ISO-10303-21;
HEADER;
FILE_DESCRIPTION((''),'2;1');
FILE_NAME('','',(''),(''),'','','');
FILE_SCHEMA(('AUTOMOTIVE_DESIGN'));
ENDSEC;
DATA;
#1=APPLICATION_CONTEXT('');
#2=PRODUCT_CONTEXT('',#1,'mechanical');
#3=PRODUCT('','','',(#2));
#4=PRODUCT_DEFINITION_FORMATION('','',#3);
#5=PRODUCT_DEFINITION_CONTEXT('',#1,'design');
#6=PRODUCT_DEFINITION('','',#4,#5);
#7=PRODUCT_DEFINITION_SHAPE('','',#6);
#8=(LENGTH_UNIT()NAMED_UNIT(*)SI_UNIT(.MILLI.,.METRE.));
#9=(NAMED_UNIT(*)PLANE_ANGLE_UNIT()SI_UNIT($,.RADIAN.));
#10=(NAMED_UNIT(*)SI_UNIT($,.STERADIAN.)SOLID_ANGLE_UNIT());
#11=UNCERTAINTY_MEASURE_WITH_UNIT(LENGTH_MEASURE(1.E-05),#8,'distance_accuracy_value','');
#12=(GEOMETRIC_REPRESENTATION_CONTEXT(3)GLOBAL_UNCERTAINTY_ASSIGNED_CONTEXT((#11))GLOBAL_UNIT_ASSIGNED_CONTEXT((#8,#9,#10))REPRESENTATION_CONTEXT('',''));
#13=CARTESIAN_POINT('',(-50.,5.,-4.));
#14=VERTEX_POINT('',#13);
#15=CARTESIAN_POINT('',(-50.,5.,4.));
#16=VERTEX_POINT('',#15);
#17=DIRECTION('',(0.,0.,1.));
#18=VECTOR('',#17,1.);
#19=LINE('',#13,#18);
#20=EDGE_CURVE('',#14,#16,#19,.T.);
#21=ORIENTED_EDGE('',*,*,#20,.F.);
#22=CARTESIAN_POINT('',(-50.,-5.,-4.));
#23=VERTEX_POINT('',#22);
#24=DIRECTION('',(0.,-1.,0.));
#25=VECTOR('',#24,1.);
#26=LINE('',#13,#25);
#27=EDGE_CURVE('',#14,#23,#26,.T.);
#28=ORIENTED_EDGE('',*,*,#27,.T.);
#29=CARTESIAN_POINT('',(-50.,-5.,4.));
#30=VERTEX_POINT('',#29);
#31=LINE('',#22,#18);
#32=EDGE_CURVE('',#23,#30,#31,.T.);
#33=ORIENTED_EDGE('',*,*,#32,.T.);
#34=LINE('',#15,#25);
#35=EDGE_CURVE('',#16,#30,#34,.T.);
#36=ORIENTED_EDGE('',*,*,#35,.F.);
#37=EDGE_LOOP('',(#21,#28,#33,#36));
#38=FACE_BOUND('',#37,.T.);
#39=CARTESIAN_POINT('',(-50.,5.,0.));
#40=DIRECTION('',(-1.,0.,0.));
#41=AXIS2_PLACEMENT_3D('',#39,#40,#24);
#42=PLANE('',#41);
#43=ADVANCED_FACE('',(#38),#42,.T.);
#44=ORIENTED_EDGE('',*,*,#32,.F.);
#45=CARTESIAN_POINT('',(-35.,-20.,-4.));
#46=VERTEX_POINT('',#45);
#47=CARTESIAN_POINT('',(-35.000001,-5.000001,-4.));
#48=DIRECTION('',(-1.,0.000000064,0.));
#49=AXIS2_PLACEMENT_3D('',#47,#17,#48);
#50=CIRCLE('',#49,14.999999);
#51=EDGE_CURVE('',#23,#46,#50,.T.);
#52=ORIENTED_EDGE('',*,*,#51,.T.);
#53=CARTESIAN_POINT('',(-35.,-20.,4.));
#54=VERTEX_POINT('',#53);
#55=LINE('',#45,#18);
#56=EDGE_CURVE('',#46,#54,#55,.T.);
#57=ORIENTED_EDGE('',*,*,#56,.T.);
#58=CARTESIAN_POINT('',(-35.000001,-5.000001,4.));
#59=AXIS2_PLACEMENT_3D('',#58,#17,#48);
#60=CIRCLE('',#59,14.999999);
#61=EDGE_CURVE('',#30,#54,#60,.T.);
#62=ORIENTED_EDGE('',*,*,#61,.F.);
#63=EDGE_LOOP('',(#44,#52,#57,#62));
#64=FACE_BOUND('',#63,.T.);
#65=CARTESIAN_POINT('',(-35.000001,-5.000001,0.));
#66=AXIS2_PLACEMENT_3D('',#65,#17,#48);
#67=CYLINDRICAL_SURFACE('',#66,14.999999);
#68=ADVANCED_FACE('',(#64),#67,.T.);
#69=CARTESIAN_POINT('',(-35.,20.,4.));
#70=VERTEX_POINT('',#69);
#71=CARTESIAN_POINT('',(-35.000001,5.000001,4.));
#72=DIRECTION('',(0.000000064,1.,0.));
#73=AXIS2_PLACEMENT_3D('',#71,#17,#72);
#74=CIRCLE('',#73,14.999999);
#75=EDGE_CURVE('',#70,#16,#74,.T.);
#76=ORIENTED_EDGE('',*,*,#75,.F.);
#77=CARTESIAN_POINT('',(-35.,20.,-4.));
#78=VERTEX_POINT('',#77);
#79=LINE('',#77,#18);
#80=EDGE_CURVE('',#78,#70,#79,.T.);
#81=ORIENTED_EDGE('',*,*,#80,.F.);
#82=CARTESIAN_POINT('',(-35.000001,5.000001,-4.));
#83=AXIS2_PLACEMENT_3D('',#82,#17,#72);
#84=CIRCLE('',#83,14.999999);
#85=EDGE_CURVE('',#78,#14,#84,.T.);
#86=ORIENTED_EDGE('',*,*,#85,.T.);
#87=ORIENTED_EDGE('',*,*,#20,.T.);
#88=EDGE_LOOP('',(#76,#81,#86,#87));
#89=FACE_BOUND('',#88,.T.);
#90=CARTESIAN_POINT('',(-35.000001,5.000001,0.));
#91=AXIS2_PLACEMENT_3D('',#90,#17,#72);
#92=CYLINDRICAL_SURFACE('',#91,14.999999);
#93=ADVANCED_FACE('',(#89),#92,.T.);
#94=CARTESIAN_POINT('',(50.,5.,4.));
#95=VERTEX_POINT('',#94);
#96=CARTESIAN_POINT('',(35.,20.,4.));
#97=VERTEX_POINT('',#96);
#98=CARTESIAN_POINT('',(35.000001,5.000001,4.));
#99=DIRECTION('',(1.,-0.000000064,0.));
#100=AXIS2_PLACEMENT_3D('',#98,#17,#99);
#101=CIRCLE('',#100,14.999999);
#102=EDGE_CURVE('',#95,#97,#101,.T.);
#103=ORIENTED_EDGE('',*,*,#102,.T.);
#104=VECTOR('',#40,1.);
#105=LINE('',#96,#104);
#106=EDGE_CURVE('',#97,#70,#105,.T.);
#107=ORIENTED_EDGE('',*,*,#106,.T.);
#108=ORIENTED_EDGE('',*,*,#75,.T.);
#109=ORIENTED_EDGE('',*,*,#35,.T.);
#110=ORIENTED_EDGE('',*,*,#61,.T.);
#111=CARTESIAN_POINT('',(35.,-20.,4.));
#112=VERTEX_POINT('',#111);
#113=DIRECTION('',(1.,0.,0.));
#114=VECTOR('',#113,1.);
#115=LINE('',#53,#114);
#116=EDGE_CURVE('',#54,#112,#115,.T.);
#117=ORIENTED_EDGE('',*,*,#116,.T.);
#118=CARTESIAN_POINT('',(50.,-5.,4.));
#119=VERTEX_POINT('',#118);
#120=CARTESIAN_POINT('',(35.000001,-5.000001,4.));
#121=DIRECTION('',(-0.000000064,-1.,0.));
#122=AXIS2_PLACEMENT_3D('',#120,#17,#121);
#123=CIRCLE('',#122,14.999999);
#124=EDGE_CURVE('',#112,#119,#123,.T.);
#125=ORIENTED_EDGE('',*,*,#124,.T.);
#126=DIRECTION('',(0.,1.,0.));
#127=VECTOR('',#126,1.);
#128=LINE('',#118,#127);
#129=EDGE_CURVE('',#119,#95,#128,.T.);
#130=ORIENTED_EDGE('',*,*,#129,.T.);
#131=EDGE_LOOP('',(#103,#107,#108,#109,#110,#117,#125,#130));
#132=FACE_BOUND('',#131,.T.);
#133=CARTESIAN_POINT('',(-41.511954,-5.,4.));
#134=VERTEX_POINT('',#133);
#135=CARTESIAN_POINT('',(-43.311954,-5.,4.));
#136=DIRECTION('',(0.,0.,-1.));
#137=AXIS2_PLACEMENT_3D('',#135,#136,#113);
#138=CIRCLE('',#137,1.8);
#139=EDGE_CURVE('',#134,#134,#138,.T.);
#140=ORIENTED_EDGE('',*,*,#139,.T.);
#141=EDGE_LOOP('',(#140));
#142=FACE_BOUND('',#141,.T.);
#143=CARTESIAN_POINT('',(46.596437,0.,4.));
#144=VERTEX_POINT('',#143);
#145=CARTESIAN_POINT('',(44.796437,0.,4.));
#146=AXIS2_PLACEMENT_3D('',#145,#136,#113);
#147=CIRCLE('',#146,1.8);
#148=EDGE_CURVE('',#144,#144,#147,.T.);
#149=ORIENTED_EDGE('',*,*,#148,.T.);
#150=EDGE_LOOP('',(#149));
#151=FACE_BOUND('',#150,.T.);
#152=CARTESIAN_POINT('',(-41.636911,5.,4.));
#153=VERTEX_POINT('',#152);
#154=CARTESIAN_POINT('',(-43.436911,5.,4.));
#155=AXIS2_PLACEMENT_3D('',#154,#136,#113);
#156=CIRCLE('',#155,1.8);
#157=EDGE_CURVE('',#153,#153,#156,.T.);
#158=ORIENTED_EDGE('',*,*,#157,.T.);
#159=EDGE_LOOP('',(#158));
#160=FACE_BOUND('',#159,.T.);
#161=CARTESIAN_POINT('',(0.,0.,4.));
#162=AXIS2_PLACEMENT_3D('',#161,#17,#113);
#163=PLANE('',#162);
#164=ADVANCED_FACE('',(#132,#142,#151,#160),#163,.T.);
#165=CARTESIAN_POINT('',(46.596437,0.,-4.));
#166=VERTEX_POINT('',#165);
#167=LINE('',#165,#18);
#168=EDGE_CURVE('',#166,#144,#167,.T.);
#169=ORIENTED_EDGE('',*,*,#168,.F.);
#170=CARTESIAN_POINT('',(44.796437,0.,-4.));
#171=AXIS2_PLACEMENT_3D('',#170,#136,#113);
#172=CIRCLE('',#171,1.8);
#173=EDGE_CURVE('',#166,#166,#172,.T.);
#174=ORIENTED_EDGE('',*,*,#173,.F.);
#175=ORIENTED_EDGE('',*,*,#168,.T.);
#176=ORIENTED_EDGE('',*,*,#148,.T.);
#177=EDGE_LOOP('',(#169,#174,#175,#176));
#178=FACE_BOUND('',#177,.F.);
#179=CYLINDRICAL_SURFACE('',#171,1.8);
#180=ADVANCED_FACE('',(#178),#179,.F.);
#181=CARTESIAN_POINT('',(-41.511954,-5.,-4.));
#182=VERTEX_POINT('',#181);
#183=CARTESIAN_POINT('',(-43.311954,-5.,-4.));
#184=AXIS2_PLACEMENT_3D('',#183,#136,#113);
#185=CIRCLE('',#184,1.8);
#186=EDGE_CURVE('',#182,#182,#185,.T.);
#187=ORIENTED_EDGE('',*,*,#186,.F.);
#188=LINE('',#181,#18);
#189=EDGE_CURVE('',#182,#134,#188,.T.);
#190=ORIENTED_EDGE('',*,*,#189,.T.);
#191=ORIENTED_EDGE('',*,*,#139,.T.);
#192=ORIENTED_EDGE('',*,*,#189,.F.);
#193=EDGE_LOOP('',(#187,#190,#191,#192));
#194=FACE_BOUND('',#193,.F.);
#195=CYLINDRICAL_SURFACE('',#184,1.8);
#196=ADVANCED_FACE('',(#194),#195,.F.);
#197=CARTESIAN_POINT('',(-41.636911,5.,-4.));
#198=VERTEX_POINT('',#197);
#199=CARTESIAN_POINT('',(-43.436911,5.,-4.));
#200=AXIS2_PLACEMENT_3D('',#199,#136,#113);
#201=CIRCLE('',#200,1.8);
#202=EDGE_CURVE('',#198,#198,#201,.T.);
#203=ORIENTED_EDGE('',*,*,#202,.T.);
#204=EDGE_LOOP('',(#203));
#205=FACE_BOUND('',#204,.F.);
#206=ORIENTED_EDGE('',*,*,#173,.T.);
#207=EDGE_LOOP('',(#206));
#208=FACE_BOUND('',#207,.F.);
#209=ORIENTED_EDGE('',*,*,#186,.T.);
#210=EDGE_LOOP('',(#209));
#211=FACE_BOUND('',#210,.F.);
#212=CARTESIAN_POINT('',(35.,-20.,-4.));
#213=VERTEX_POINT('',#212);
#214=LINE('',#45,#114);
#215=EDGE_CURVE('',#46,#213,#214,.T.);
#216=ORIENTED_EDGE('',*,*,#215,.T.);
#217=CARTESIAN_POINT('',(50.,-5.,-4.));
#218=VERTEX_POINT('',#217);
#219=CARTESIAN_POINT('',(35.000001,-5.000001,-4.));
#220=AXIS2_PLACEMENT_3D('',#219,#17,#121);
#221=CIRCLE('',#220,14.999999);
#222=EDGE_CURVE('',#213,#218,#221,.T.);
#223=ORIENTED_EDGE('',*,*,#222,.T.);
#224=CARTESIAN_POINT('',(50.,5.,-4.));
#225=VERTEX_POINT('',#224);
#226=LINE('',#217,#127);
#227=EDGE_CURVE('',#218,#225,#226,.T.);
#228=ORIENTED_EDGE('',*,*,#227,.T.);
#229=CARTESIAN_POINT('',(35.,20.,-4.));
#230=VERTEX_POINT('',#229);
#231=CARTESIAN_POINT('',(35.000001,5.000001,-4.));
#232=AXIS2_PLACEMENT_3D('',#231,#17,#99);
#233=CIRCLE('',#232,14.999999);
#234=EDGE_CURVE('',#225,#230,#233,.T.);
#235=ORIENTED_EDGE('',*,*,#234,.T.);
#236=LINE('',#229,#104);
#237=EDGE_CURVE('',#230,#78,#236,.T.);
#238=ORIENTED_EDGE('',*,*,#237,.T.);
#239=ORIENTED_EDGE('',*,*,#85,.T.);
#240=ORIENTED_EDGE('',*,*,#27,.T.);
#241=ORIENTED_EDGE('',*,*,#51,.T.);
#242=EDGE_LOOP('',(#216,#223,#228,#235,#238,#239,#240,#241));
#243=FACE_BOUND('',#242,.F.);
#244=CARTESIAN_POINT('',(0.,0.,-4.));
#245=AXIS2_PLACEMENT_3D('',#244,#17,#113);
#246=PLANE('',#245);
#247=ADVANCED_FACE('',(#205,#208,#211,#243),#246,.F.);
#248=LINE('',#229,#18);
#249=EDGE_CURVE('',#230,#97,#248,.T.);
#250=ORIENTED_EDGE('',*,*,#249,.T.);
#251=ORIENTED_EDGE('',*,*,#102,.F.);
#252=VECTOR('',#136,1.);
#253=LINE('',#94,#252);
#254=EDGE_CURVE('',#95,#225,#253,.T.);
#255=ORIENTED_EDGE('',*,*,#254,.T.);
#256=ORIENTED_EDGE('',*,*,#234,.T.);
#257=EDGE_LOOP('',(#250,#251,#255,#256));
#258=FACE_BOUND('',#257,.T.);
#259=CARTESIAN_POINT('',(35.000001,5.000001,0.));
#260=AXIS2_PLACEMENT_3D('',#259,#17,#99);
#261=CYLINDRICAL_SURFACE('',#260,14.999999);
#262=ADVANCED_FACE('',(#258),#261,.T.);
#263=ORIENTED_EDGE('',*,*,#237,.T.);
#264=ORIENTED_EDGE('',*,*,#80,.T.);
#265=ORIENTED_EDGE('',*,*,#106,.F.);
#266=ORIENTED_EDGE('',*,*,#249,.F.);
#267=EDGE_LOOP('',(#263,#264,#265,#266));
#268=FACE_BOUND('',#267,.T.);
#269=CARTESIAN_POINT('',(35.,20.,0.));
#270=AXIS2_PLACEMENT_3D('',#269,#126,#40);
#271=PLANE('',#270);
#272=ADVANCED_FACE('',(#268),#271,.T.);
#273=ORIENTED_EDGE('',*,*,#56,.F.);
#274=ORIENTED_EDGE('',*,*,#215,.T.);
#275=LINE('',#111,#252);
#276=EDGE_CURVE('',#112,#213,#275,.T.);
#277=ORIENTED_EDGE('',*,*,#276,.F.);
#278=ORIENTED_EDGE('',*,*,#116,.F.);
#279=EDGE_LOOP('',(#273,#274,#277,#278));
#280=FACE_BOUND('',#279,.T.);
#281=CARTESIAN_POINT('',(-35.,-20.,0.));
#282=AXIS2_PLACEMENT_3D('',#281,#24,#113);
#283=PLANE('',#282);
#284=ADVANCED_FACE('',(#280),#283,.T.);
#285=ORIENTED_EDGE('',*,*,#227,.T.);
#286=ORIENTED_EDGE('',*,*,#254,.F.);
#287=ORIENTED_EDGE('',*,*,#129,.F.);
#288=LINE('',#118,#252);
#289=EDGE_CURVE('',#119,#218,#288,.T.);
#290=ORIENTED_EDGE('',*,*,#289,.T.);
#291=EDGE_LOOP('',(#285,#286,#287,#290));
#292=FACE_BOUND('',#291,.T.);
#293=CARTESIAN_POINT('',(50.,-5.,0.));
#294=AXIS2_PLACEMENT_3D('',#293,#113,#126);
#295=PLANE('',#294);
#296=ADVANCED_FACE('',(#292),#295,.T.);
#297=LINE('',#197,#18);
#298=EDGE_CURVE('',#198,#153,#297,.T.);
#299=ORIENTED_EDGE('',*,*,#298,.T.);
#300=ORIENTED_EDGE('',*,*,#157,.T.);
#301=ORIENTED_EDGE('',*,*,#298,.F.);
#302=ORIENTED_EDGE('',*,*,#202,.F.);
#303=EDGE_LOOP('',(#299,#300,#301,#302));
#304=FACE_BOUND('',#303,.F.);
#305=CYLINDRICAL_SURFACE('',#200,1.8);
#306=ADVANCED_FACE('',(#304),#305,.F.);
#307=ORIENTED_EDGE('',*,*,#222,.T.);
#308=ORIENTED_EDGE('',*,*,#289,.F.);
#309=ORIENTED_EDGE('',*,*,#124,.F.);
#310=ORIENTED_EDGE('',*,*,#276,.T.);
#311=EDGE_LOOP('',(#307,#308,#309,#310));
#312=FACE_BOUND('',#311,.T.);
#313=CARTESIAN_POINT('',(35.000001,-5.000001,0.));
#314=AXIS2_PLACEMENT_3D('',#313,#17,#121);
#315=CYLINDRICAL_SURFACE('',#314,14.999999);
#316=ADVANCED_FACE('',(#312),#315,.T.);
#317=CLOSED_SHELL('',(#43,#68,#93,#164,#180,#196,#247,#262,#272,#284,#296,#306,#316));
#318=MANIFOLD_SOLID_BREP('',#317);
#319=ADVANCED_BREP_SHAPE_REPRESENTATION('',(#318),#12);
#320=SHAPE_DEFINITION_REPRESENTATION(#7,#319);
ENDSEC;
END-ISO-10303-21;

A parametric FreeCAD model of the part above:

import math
import FreeCAD as App
import Part
import Sketcher
from FreeCAD import Vector
Q = App.Units.Quantity

doc = App.newDocument("Part")
body = doc.addObject("PartDesign::Body", "Body")

# Sketch on XY plane
sketch1 = body.newObject("Sketcher::SketchObject", "Sketch")
sketch1.AttachmentSupport = (doc.getObject("XY_Plane"), [""])
sketch1.MapMode = "FlatFace"
sketch1.addGeometry([
    Part.ArcOfCircle(Part.Circle(Vector(35, 5, 0), Vector(0, 0, 1), 15), math.radians(0), math.radians(90)),  # 0
    Part.LineSegment(Vector(35, 20, 0), Vector(-35, 20, 0)),  # 1
    Part.ArcOfCircle(Part.Circle(Vector(-35, 5, 0), Vector(0, 0, 1), 15), math.radians(90), math.radians(180)),  # 2
    Part.LineSegment(Vector(-50, 5, 0), Vector(-50, -5, 0)),  # 3
    Part.ArcOfCircle(Part.Circle(Vector(-35, -5, 0), Vector(0, 0, 1), 15), math.radians(180), math.radians(270)),  # 4
    Part.LineSegment(Vector(-35, -20, 0), Vector(35, -20, 0)),  # 5
    Part.ArcOfCircle(Part.Circle(Vector(35, -5, 0), Vector(0, 0, 1), 15), math.radians(-90), math.radians(0)),  # 6
    Part.LineSegment(Vector(50, -5, 0), Vector(50, 5, 0)),  # 7
], False)
sketch1.addConstraint([
    Sketcher.Constraint("Tangent", 0, 2, 1, 1),
    Sketcher.Constraint("Tangent", 1, 2, 2, 1),
    Sketcher.Constraint("Tangent", 2, 2, 3, 1),
    Sketcher.Constraint("Tangent", 3, 2, 4, 1),
    Sketcher.Constraint("Tangent", 4, 2, 5, 1),
    Sketcher.Constraint("Tangent", 5, 2, 6, 1),
    Sketcher.Constraint("Tangent", 6, 2, 7, 1),
    Sketcher.Constraint("Tangent", 7, 2, 0, 1),
    Sketcher.Constraint("Horizontal", 1),
    Sketcher.Constraint("Vertical", 3),
    Sketcher.Constraint("Horizontal", 5),
    Sketcher.Constraint("Vertical", 7),
    Sketcher.Constraint("Equal", 0, 2),
    Sketcher.Constraint("Equal", 2, 4),
    Sketcher.Constraint("Equal", 4, 6),
    Sketcher.Constraint("Symmetric", 0, 3, 4, 3, -1, 1),
    Sketcher.Constraint("Radius", 0, Q("14.999999 mm")),
    Sketcher.Constraint("DistanceX", 1, 2, 1, 1, Q("70 mm")),
    Sketcher.Constraint("DistanceY", 3, 2, 3, 1, Q("10 mm")),
])
pad1 = body.newObject("PartDesign::Pad", "Pad")
pad1.Profile = sketch1
pad1.Length = 8
pad1.Midplane = True

# Sketch on XY plane
sketch2 = body.newObject("Sketcher::SketchObject", "Sketch001")
sketch2.AttachmentSupport = (doc.getObject("XY_Plane"), [""])
sketch2.MapMode = "FlatFace"
sketch2.AttachmentOffset = App.Placement(Vector(0, 0, -4), App.Rotation())
sketch2.addGeometry([
    Part.Circle(Vector(-43.3, -5, 0), Vector(0, 0, 1), 1.8),
    Part.Circle(Vector(-43.4, 5, 0), Vector(0, 0, 1), 1.8),
], False)
sketch2.addConstraint([
    Sketcher.Constraint("Equal", 0, 1),
    Sketcher.Constraint("Diameter", 0, Q("3.6 mm")),
    Sketcher.Constraint("DistanceY", 0, 3, -1, 1, Q("5 mm")),
    Sketcher.Constraint("DistanceY", -1, 1, 1, 3, Q("5 mm")),
    Sketcher.Constraint("DistanceX", 1, 3, -1, 1, Q("43.436911 mm")),
    Sketcher.Constraint("DistanceX", 0, 3, -1, 1, Q("43.311954 mm")),
])
pocket1 = body.newObject("PartDesign::Pocket", "Pocket")
pocket1.Profile = sketch2
pocket1.Length = 8
pocket1.Reversed = True

# Sketch on XY plane
sketch3 = body.newObject("Sketcher::SketchObject", "Sketch002")
sketch3.AttachmentSupport = (doc.getObject("XY_Plane"), [""])
sketch3.MapMode = "FlatFace"
sketch3.AttachmentOffset = App.Placement(Vector(0, 0, -4), App.Rotation())
sketch3.addGeometry(Part.Circle(Vector(44.8, 0, 0), Vector(0, 0, 1), 1.8), False)
sketch3.addConstraint([
    Sketcher.Constraint("PointOnObject", 0, 3, -1),
    Sketcher.Constraint("Diameter", 0, Q("3.6 mm")),
    Sketcher.Constraint("DistanceX", -1, 1, 0, 3, Q("44.796437 mm")),
])
pocket2 = body.newObject("PartDesign::Pocket", "Pocket001")
pocket2.Profile = sketch3
pocket2.Length = 8
pocket2.Reversed = True

doc.recompute()
